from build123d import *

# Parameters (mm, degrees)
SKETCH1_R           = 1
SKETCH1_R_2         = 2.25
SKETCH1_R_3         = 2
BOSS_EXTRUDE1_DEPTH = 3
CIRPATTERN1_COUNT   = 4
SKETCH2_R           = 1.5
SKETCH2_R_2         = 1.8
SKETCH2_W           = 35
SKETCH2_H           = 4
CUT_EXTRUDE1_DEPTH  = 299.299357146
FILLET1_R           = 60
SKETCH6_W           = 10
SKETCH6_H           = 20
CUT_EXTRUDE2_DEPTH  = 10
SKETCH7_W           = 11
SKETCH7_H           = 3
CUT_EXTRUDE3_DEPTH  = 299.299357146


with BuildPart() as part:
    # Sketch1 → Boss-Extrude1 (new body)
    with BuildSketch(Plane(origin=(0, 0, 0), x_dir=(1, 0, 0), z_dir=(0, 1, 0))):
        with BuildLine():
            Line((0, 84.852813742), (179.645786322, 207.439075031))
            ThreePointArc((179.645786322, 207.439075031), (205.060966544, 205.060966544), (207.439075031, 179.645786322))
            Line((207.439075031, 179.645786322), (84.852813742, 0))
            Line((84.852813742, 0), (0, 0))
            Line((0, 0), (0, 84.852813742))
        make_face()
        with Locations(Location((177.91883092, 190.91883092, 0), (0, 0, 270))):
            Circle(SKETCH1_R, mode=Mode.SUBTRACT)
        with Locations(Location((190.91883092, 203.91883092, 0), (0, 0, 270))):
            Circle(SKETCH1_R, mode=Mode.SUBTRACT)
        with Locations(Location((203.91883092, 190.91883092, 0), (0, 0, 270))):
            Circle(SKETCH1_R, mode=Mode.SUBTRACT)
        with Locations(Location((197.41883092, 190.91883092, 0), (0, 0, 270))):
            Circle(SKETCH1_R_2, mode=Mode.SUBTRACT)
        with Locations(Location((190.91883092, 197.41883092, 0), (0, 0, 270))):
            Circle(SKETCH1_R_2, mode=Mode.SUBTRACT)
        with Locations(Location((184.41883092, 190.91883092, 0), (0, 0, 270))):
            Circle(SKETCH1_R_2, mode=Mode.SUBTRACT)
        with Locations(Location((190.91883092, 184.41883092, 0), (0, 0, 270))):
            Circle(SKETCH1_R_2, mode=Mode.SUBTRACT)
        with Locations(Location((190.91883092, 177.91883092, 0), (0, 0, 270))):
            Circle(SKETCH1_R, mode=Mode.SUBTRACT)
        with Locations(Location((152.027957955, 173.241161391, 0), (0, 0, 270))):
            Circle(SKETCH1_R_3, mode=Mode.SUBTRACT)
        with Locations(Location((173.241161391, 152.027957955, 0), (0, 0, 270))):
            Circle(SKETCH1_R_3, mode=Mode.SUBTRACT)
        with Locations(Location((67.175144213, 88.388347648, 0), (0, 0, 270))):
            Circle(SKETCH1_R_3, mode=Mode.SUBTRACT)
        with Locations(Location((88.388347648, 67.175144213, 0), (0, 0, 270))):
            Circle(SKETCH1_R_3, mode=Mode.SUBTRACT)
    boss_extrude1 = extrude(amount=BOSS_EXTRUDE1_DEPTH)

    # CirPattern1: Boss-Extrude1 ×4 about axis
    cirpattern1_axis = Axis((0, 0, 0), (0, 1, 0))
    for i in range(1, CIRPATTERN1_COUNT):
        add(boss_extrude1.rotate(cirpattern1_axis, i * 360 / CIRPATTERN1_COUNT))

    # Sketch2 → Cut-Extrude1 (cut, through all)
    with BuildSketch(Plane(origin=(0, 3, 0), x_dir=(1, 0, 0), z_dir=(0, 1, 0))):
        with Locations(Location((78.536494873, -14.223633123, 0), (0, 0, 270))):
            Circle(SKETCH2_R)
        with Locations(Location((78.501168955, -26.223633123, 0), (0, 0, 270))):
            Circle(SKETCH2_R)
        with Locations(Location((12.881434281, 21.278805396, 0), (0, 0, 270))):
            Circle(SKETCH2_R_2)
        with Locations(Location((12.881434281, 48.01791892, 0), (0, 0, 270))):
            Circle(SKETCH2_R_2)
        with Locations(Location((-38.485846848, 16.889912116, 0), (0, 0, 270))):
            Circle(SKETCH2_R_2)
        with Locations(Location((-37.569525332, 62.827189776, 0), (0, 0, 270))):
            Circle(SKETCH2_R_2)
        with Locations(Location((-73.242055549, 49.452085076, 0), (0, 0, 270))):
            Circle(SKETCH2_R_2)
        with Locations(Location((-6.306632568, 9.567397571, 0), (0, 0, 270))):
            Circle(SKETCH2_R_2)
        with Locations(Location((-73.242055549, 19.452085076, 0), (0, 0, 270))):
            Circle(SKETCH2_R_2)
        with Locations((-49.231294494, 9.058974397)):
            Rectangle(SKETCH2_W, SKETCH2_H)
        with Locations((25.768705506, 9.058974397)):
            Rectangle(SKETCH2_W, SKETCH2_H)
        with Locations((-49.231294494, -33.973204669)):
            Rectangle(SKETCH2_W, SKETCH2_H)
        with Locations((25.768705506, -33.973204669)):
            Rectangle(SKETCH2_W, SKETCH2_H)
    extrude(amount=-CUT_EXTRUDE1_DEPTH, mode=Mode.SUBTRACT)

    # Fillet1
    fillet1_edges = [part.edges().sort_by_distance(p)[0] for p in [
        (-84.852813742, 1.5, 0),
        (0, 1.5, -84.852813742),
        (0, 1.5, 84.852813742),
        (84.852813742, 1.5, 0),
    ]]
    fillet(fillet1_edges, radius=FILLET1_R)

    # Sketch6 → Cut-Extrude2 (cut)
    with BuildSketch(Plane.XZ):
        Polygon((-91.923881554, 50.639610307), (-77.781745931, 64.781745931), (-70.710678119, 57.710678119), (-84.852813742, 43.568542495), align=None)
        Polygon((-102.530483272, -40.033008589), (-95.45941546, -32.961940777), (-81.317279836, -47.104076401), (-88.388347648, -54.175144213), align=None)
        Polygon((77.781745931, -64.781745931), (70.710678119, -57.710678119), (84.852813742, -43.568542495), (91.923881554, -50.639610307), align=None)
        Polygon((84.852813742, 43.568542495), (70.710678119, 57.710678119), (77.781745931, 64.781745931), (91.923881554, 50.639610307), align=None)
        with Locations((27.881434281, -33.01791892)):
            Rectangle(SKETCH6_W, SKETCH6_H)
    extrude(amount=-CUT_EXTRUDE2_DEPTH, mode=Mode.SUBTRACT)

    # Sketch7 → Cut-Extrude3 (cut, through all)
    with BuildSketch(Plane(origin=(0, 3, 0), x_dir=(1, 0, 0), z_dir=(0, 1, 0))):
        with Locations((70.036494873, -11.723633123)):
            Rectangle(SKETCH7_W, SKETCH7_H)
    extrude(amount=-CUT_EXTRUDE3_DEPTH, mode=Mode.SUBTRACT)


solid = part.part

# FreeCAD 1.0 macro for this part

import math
import FreeCAD as App
import Part
import Sketcher
from FreeCAD import Vector


def edges_at(feature, points):
    """Names of the edges that pass closest to the given points."""
    edges = feature.Shape.Edges
    near = lambda p: min(range(len(edges)), key=lambda i: edges[i].distToShape(Part.Vertex(*p))[0])
    return sorted({f"Edge{near(p) + 1}" for p in points})

doc = App.newDocument("Part")
body = doc.addObject("PartDesign::Body", "Body")

# Sketch on XZ plane
sketch1 = doc.addObject("Sketcher::SketchObject", "Sketch")
body.addObject(sketch1)
sketch1.AttachmentSupport = (doc.XZ_Plane, [""])
sketch1.MapMode = "FlatFace"
sketch1.addGeometry(Part.LineSegment(Vector(179.6, -207.4, 0), Vector(0, -84.9, 0)), False)
sketch1.addGeometry(Part.LineSegment(Vector(0, -84.9, 0), Vector(0, 0, 0)), False)
sketch1.addGeometry(Part.LineSegment(Vector(0, 0, 0), Vector(84.9, 0, 0)), False)
sketch1.addGeometry(Part.LineSegment(Vector(84.9, 0, 0), Vector(207.4, -179.6, 0)), False)
sketch1.addGeometry(Part.ArcOfCircle(Part.Circle(Vector(190.9, -190.9, 0), Vector(0, 0, 1), 20), math.radians(-124), math.radians(34)), False)
sketch1.addGeometry(Part.Circle(Vector(88.4, -67.2, 0), Vector(0, 0, 1), 2), False)
sketch1.addGeometry(Part.Circle(Vector(67.2, -88.4, 0), Vector(0, 0, 1), 2), False)
sketch1.addGeometry(Part.Circle(Vector(173.2, -152, 0), Vector(0, 0, 1), 2), False)
sketch1.addGeometry(Part.Circle(Vector(190.9, -177.9, 0), Vector(0, 0, 1), 1), False)
sketch1.addGeometry(Part.Circle(Vector(190.9, -184.4, 0), Vector(0, 0, 1), 2.2), False)
sketch1.addGeometry(Part.Circle(Vector(203.9, -190.9, 0), Vector(0, 0, 1), 1), False)
sketch1.addGeometry(Part.Circle(Vector(197.4, -190.9, 0), Vector(0, 0, 1), 2.2), False)
sketch1.addGeometry(Part.Circle(Vector(190.9, -197.4, 0), Vector(0, 0, 1), 2.2), False)
sketch1.addGeometry(Part.Circle(Vector(190.9, -203.9, 0), Vector(0, 0, 1), 1), False)
sketch1.addGeometry(Part.Circle(Vector(184.4, -190.9, 0), Vector(0, 0, 1), 2.2), False)
sketch1.addGeometry(Part.Circle(Vector(177.9, -190.9, 0), Vector(0, 0, 1), 1), False)
sketch1.addGeometry(Part.Circle(Vector(152, -173.2, 0), Vector(0, 0, 1), 2), False)
sketch1.addConstraint(Sketcher.Constraint("Coincident", 0, 2, 1, 1))
sketch1.addConstraint(Sketcher.Constraint("Coincident", 1, 2, 2, 1))
sketch1.addConstraint(Sketcher.Constraint("Coincident", 2, 2, 3, 1))
sketch1.addConstraint(Sketcher.Constraint("Tangent", 3, 2, 4, 2))
sketch1.addConstraint(Sketcher.Constraint("Tangent", 4, 1, 0, 1))
sketch1.addConstraint(Sketcher.Constraint("Vertical", 1))
sketch1.addConstraint(Sketcher.Constraint("Horizontal", 2))
sketch1.addConstraint(Sketcher.Constraint("Coincident", 1, 2, -1, 1))
sketch1.addConstraint(Sketcher.Constraint("Equal", 5, 6))
sketch1.addConstraint(Sketcher.Constraint("Equal", 6, 7))
sketch1.addConstraint(Sketcher.Constraint("Equal", 8, 10))
sketch1.addConstraint(Sketcher.Constraint("Equal", 9, 11))
sketch1.addConstraint(Sketcher.Constraint("Equal", 11, 12))
sketch1.addConstraint(Sketcher.Constraint("Equal", 10, 13))
sketch1.addConstraint(Sketcher.Constraint("Equal", 12, 14))
sketch1.addConstraint(Sketcher.Constraint("Equal", 13, 15))
sketch1.addConstraint(Sketcher.Constraint("Equal", 7, 16))
sketch1.addConstraint(Sketcher.Constraint("Horizontal", 4, 3, 10, 3))
sketch1.addConstraint(Sketcher.Constraint("Horizontal", 10, 3, 11, 3))
sketch1.addConstraint(Sketcher.Constraint("Horizontal", 11, 3, 14, 3))
sketch1.addConstraint(Sketcher.Constraint("Horizontal", 14, 3, 15, 3))
sketch1.addConstraint(Sketcher.Constraint("Vertical", 4, 3, 8, 3))
sketch1.addConstraint(Sketcher.Constraint("Vertical", 8, 3, 9, 3))
sketch1.addConstraint(Sketcher.Constraint("Vertical", 9, 3, 12, 3))
sketch1.addConstraint(Sketcher.Constraint("Vertical", 12, 3, 13, 3))
sketch1.addConstraint(Sketcher.Constraint("Equal", 2, 1))
sketch1.addConstraint(Sketcher.Constraint("Equal", 0, 3))
sketch1.addConstraint(Sketcher.Constraint("Diameter", 5, 4.0))
sketch1.addConstraint(Sketcher.Constraint("Diameter", 8, 2.0))
sketch1.addConstraint(Sketcher.Constraint("Radius", 4, 20.0))
sketch1.addConstraint(Sketcher.Constraint("Diameter", 9, 4.5))
sketch1.addConstraint(Sketcher.Constraint("DistanceY", 4, 3, 8, 3, 13.0))
sketch1.addConstraint(Sketcher.Constraint("DistanceX", 4, 3, 10, 3, 13.0))
sketch1.addConstraint(Sketcher.Constraint("DistanceY", 12, 3, 9, 3, 13.0))
sketch1.addConstraint(Sketcher.Constraint("DistanceY", 13, 3, 4, 3, 13.0))
sketch1.addConstraint(Sketcher.Constraint("DistanceX", 14, 3, 11, 3, 13.0))
sketch1.addConstraint(Sketcher.Constraint("DistanceX", 15, 3, 4, 3, 13.0))
sketch1.addConstraint(Sketcher.Constraint("DistanceY", 4, 3, 9, 3, 6.5))
sketch1.addConstraint(Sketcher.Constraint("DistanceX", 4, 3, 11, 3, 6.5))
sketch1.addConstraint(Sketcher.Constraint("Distance", 0, 217.485632))
sketch1.addConstraint(Sketcher.Constraint("DistanceX", 2, 1, 2, 2, 84.852814))
sketch1.addConstraint(Sketcher.Constraint("DistanceX", -1, 1, 7, 3, 173.241161))
sketch1.addConstraint(Sketcher.Constraint("DistanceY", 16, 3, -1, 1, 173.241161))
sketch1.addConstraint(Sketcher.Constraint("DistanceY", 7, 3, 6, 3, 63.63961))
sketch1.addConstraint(Sketcher.Constraint("DistanceY", 0, 2, 5, 3, 17.67767))
sketch1.addConstraint(Sketcher.Constraint("DistanceX", 6, 3, 2, 2, 17.67767))
sketch1.addConstraint(Sketcher.Constraint("DistanceX", -1, 1, 5, 3, 88.388348))
sketch1.addConstraint(Sketcher.Constraint("DistanceY", 6, 3, -1, 1, 88.388348))
sketch1.addConstraint(Sketcher.Constraint("DistanceX", -1, 1, 16, 3, 152.027958))
pad1 = doc.addObject("PartDesign::Pad", "Pad")
body.addObject(pad1)
pad1.Profile = sketch1
pad1.Length = 3
pad1.Reversed = True
doc.recompute()

polarpattern = doc.addObject("PartDesign::PolarPattern", "PolarPattern")
body.addObject(polarpattern)
polarpattern.Originals = [pad1]
polarpattern.Axis = (doc.Y_Axis, [""])
polarpattern.Angle = 360
polarpattern.Occurrences = 4
body.Tip = polarpattern

# Sketch on XZ plane
sketch2 = doc.addObject("Sketcher::SketchObject", "Sketch001")
body.addObject(sketch2)
sketch2.AttachmentSupport = (doc.XZ_Plane, [""])
sketch2.MapMode = "FlatFace"
sketch2.AttachmentOffset = App.Placement(Vector(0, 0, -3), App.Rotation())
sketch2.addGeometry(Part.Circle(Vector(78.5, 14.2, 0), Vector(0, 0, 1), 1.5), False)
sketch2.addGeometry(Part.Circle(Vector(78.5, 26.2, 0), Vector(0, 0, 1), 1.5), False)
sketch2.addGeometry(Part.Circle(Vector(12.9, -21.3, 0), Vector(0, 0, 1), 1.8), False)
sketch2.addGeometry(Part.Circle(Vector(12.9, -48, 0), Vector(0, 0, 1), 1.8), False)
sketch2.addGeometry(Part.Circle(Vector(-38.5, -16.9, 0), Vector(0, 0, 1), 1.8), False)
sketch2.addGeometry(Part.Circle(Vector(-37.6, -62.8, 0), Vector(0, 0, 1), 1.8), False)
sketch2.addGeometry(Part.Circle(Vector(-73.2, -49.5, 0), Vector(0, 0, 1), 1.8), False)
sketch2.addGeometry(Part.Circle(Vector(-6.3, -9.6, 0), Vector(0, 0, 1), 1.8), False)
sketch2.addGeometry(Part.Circle(Vector(-73.2, -19.5, 0), Vector(0, 0, 1), 1.8), False)
sketch2.addGeometry(Part.LineSegment(Vector(-66.7, -11.1, 0), Vector(-66.7, -7.1, 0)), False)
sketch2.addGeometry(Part.LineSegment(Vector(-66.7, -7.1, 0), Vector(-31.7, -7.1, 0)), False)
sketch2.addGeometry(Part.LineSegment(Vector(-31.7, -7.1, 0), Vector(-31.7, -11.1, 0)), False)
sketch2.addGeometry(Part.LineSegment(Vector(-31.7, -11.1, 0), Vector(-66.7, -11.1, 0)), False)
sketch2.addGeometry(Part.LineSegment(Vector(8.3, -11.1, 0), Vector(8.3, -7.1, 0)), False)
sketch2.addGeometry(Part.LineSegment(Vector(8.3, -7.1, 0), Vector(43.3, -7.1, 0)), False)
sketch2.addGeometry(Part.LineSegment(Vector(43.3, -7.1, 0), Vector(43.3, -11.1, 0)), False)
sketch2.addGeometry(Part.LineSegment(Vector(43.3, -11.1, 0), Vector(8.3, -11.1, 0)), False)
sketch2.addGeometry(Part.LineSegment(Vector(-66.7, 32, 0), Vector(-66.7, 36, 0)), False)
sketch2.addGeometry(Part.LineSegment(Vector(-66.7, 36, 0), Vector(-31.7, 36, 0)), False)
sketch2.addGeometry(Part.LineSegment(Vector(-31.7, 36, 0), Vector(-31.7, 32, 0)), False)
sketch2.addGeometry(Part.LineSegment(Vector(-31.7, 32, 0), Vector(-66.7, 32, 0)), False)
sketch2.addGeometry(Part.LineSegment(Vector(8.3, 32, 0), Vector(8.3, 36, 0)), False)
sketch2.addGeometry(Part.LineSegment(Vector(8.3, 36, 0), Vector(43.3, 36, 0)), False)
sketch2.addGeometry(Part.LineSegment(Vector(43.3, 36, 0), Vector(43.3, 32, 0)), False)
sketch2.addGeometry(Part.LineSegment(Vector(43.3, 32, 0), Vector(8.3, 32, 0)), False)
sketch2.addConstraint(Sketcher.Constraint("Coincident", 9, 2, 10, 1))
sketch2.addConstraint(Sketcher.Constraint("Coincident", 10, 2, 11, 1))
sketch2.addConstraint(Sketcher.Constraint("Coincident", 11, 2, 12, 1))
sketch2.addConstraint(Sketcher.Constraint("Coincident", 12, 2, 9, 1))
sketch2.addConstraint(Sketcher.Constraint("Coincident", 13, 2, 14, 1))
sketch2.addConstraint(Sketcher.Constraint("Coincident", 14, 2, 15, 1))
sketch2.addConstraint(Sketcher.Constraint("Coincident", 15, 2, 16, 1))
sketch2.addConstraint(Sketcher.Constraint("Coincident", 16, 2, 13, 1))
sketch2.addConstraint(Sketcher.Constraint("Coincident", 17, 2, 18, 1))
sketch2.addConstraint(Sketcher.Constraint("Coincident", 18, 2, 19, 1))
sketch2.addConstraint(Sketcher.Constraint("Coincident", 19, 2, 20, 1))
sketch2.addConstraint(Sketcher.Constraint("Coincident", 20, 2, 17, 1))
sketch2.addConstraint(Sketcher.Constraint("Coincident", 21, 2, 22, 1))
sketch2.addConstraint(Sketcher.Constraint("Coincident", 22, 2, 23, 1))
sketch2.addConstraint(Sketcher.Constraint("Coincident", 23, 2, 24, 1))
sketch2.addConstraint(Sketcher.Constraint("Coincident", 24, 2, 21, 1))
sketch2.addConstraint(Sketcher.Constraint("Vertical", 9))
sketch2.addConstraint(Sketcher.Constraint("Horizontal", 10))
sketch2.addConstraint(Sketcher.Constraint("Vertical", 11))
sketch2.addConstraint(Sketcher.Constraint("Horizontal", 12))
sketch2.addConstraint(Sketcher.Constraint("Vertical", 13))
sketch2.addConstraint(Sketcher.Constraint("Horizontal", 14))
sketch2.addConstraint(Sketcher.Constraint("Vertical", 15))
sketch2.addConstraint(Sketcher.Constraint("Horizontal", 16))
sketch2.addConstraint(Sketcher.Constraint("Vertical", 17))
sketch2.addConstraint(Sketcher.Constraint("Horizontal", 18))
sketch2.addConstraint(Sketcher.Constraint("Vertical", 19))
sketch2.addConstraint(Sketcher.Constraint("Horizontal", 20))
sketch2.addConstraint(Sketcher.Constraint("Vertical", 21))
sketch2.addConstraint(Sketcher.Constraint("Horizontal", 22))
sketch2.addConstraint(Sketcher.Constraint("Vertical", 23))
sketch2.addConstraint(Sketcher.Constraint("Horizontal", 24))
sketch2.addConstraint(Sketcher.Constraint("Equal", 0, 1))
sketch2.addConstraint(Sketcher.Constraint("Equal", 2, 3))
sketch2.addConstraint(Sketcher.Constraint("Equal", 3, 4))
sketch2.addConstraint(Sketcher.Constraint("Equal", 4, 5))
sketch2.addConstraint(Sketcher.Constraint("Equal", 5, 6))
sketch2.addConstraint(Sketcher.Constraint("Equal", 6, 7))
sketch2.addConstraint(Sketcher.Constraint("Equal", 7, 8))
sketch2.addConstraint(Sketcher.Constraint("Horizontal", 10, 2, 13, 2))
sketch2.addConstraint(Sketcher.Constraint("Horizontal", 12, 2, 15, 2))
sketch2.addConstraint(Sketcher.Constraint("Horizontal", 18, 2, 21, 2))
sketch2.addConstraint(Sketcher.Constraint("Horizontal", 20, 2, 23, 2))
sketch2.addConstraint(Sketcher.Constraint("Vertical", 2, 3, 3, 3))
sketch2.addConstraint(Sketcher.Constraint("Vertical", 6, 3, 8, 3))
sketch2.addConstraint(Sketcher.Constraint("Vertical", 12, 2, 17, 2))
sketch2.addConstraint(Sketcher.Constraint("Vertical", 11, 2, 18, 2))
sketch2.addConstraint(Sketcher.Constraint("Vertical", 16, 2, 21, 2))
sketch2.addConstraint(Sketcher.Constraint("Vertical", 15, 2, 22, 2))
sketch2.addConstraint(Sketcher.Constraint("Equal", 12, 14))
sketch2.addConstraint(Sketcher.Constraint("Equal", 15, 17))
sketch2.addConstraint(Sketcher.Constraint("Diameter", 0, 3.0))
sketch2.addConstraint(Sketcher.Constraint("Diameter", 2, 3.6))
sketch2.addConstraint(Sketcher.Constraint("DistanceX", 10, 1, 10, 2, 35.0))
sketch2.addConstraint(Sketcher.Constraint("DistanceY", 9, 1, 9, 2, 4.0))
sketch2.addConstraint(Sketcher.Constraint("DistanceY", 0, 3, 1, 3, 12.0))
sketch2.addConstraint(Sketcher.Constraint("DistanceY", 6, 3, 8, 3, 30.0))
sketch2.addConstraint(Sketcher.Constraint("DistanceX", 10, 2, 13, 2, 40.0))
sketch2.addConstraint(Sketcher.Constraint("DistanceX", -1, 1, 1, 3, 78.501169))
sketch2.addConstraint(Sketcher.Constraint("DistanceY", 3, 3, -1, 1, 48.017919))
sketch2.addConstraint(Sketcher.Constraint("DistanceY", 5, 3, -1, 1, 62.82719))
sketch2.addConstraint(Sketcher.Constraint("DistanceX", 2, 3, 0, 3, 65.655061))
sketch2.addConstraint(Sketcher.Constraint("DistanceY", 2, 3, 0, 3, 35.502439))
sketch2.addConstraint(Sketcher.Constraint("DistanceX", 4, 3, 2, 3, 51.367281))
sketch2.addConstraint(Sketcher.Constraint("DistanceX", 4, 3, 5, 3, 0.916322))
sketch2.addConstraint(Sketcher.Constraint("DistanceX", 6, 3, 5, 3, 35.67253))
sketch2.addConstraint(Sketcher.Constraint("DistanceY", 6, 3, 2, 3, 28.17328))
sketch2.addConstraint(Sketcher.Constraint("DistanceY", 3, 3, 7, 3, 38.450521))
sketch2.addConstraint(Sketcher.Constraint("DistanceX", 8, 3, 9, 2, 6.510761))
sketch2.addConstraint(Sketcher.Constraint("DistanceY", 8, 3, 9, 2, 12.393111))
sketch2.addConstraint(Sketcher.Constraint("DistanceX", 9, 2, 7, 3, 60.424662))
sketch2.addConstraint(Sketcher.Constraint("DistanceY", 9, 2, 17, 2, 43.032179))
sketch2.addConstraint(Sketcher.Constraint("DistanceX", -1, 1, 0, 3, 78.536495))
sketch2.addConstraint(Sketcher.Constraint("DistanceY", -1, 1, 0, 3, 14.223633))
sketch2.addConstraint(Sketcher.Constraint("DistanceY", 4, 3, -1, 1, 16.889912))
pocket1 = doc.addObject("PartDesign::Pocket", "Pocket")
body.addObject(pocket1)
pocket1.Profile = sketch2
pocket1.Type = "ThroughAll"
pocket1.Reversed = True
doc.recompute()

fillet = doc.addObject("PartDesign::Fillet", "Fillet")
body.addObject(fillet)
fillet.Base = (pocket1, edges_at(pocket1, [
    (-84.853, 1.5, 0),
    (0, 1.5, -84.853),
    (0, 1.5, 84.853),
    (84.853, 1.5, 0),
]))
fillet.Radius = 60

# Sketch on XZ plane
sketch3 = doc.addObject("Sketcher::SketchObject", "Sketch002")
body.addObject(sketch3)
sketch3.AttachmentSupport = (doc.XZ_Plane, [""])
sketch3.MapMode = "FlatFace"
sketch3.addGeometry(Part.LineSegment(Vector(-78, 65, 0), Vector(-92, 51, 0)), False)
sketch3.addGeometry(Part.LineSegment(Vector(-92, 51, 0), Vector(-85, 44, 0)), False)
sketch3.addGeometry(Part.LineSegment(Vector(-85, 44, 0), Vector(-71, 58, 0)), False)
sketch3.addGeometry(Part.LineSegment(Vector(-71, 58, 0), Vector(-78, 65, 0)), False)
sketch3.addGeometry(Part.LineSegment(Vector(-95, -33, 0), Vector(-103, -40, 0)), False)
sketch3.addGeometry(Part.LineSegment(Vector(-103, -40, 0), Vector(-88, -54, 0)), False)
sketch3.addGeometry(Part.LineSegment(Vector(-88, -54, 0), Vector(-81, -47, 0)), False)
sketch3.addGeometry(Part.LineSegment(Vector(-81, -47, 0), Vector(-95, -33, 0)), False)
sketch3.addGeometry(Part.LineSegment(Vector(71, -58, 0), Vector(78, -65, 0)), False)
sketch3.addGeometry(Part.LineSegment(Vector(78, -65, 0), Vector(92, -51, 0)), False)
sketch3.addGeometry(Part.LineSegment(Vector(92, -51, 0), Vector(85, -44, 0)), False)
sketch3.addGeometry(Part.LineSegment(Vector(85, -44, 0), Vector(71, -58, 0)), False)
sketch3.addGeometry(Part.LineSegment(Vector(71, 58, 0), Vector(85, 44, 0)), False)
sketch3.addGeometry(Part.LineSegment(Vector(85, 44, 0), Vector(92, 51, 0)), False)
sketch3.addGeometry(Part.LineSegment(Vector(92, 51, 0), Vector(78, 65, 0)), False)
sketch3.addGeometry(Part.LineSegment(Vector(78, 65, 0), Vector(71, 58, 0)), False)
sketch3.addGeometry(Part.LineSegment(Vector(23, -23, 0), Vector(23, -43, 0)), False)
sketch3.addGeometry(Part.LineSegment(Vector(23, -43, 0), Vector(33, -43, 0)), False)
sketch3.addGeometry(Part.LineSegment(Vector(33, -43, 0), Vector(33, -23, 0)), False)
sketch3.addGeometry(Part.LineSegment(Vector(33, -23, 0), Vector(23, -23, 0)), False)
sketch3.addConstraint(Sketcher.Constraint("Coincident", 0, 2, 1, 1))
sketch3.addConstraint(Sketcher.Constraint("Coincident", 1, 2, 2, 1))
sketch3.addConstraint(Sketcher.Constraint("Coincident", 2, 2, 3, 1))
sketch3.addConstraint(Sketcher.Constraint("Coincident", 3, 2, 0, 1))
sketch3.addConstraint(Sketcher.Constraint("Coincident", 4, 2, 5, 1))
sketch3.addConstraint(Sketcher.Constraint("Coincident", 5, 2, 6, 1))
sketch3.addConstraint(Sketcher.Constraint("Coincident", 6, 2, 7, 1))
sketch3.addConstraint(Sketcher.Constraint("Coincident", 7, 2, 4, 1))
sketch3.addConstraint(Sketcher.Constraint("Coincident", 8, 2, 9, 1))
sketch3.addConstraint(Sketcher.Constraint("Coincident", 9, 2, 10, 1))
sketch3.addConstraint(Sketcher.Constraint("Coincident", 10, 2, 11, 1))
sketch3.addConstraint(Sketcher.Constraint("Coincident", 11, 2, 8, 1))
sketch3.addConstraint(Sketcher.Constraint("Coincident", 12, 2, 13, 1))
sketch3.addConstraint(Sketcher.Constraint("Coincident", 13, 2, 14, 1))
sketch3.addConstraint(Sketcher.Constraint("Coincident", 14, 2, 15, 1))
sketch3.addConstraint(Sketcher.Constraint("Coincident", 15, 2, 12, 1))
sketch3.addConstraint(Sketcher.Constraint("Coincident", 16, 2, 17, 1))
sketch3.addConstraint(Sketcher.Constraint("Coincident", 17, 2, 18, 1))
sketch3.addConstraint(Sketcher.Constraint("Coincident", 18, 2, 19, 1))
sketch3.addConstraint(Sketcher.Constraint("Coincident", 19, 2, 16, 1))
sketch3.addConstraint(Sketcher.Constraint("Vertical", 16))
sketch3.addConstraint(Sketcher.Constraint("Horizontal", 17))
sketch3.addConstraint(Sketcher.Constraint("Vertical", 18))
sketch3.addConstraint(Sketcher.Constraint("Horizontal", 19))
sketch3.addConstraint(Sketcher.Constraint("Symmetric", 3, 2, 8, 2, -1, 1))
sketch3.addConstraint(Sketcher.Constraint("Symmetric", 0, 2, 9, 2, -1, 1))
sketch3.addConstraint(Sketcher.Constraint("Symmetric", 1, 2, 10, 2, -1, 1))
sketch3.addConstraint(Sketcher.Constraint("Symmetric", 2, 2, 11, 2, -1, 1))
sketch3.addConstraint(Sketcher.Constraint("Symmetric", 1, 2, 12, 2, -2))
sketch3.addConstraint(Sketcher.Constraint("Symmetric", 0, 2, 13, 2, -2))
sketch3.addConstraint(Sketcher.Constraint("Symmetric", 3, 2, 14, 2, -2))
sketch3.addConstraint(Sketcher.Constraint("Symmetric", 2, 2, 15, 2, -2))
sketch3.addConstraint(Sketcher.Constraint("Perpendicular", 0, 1))
sketch3.addConstraint(Sketcher.Constraint("Perpendicular", 1, 2))
sketch3.addConstraint(Sketcher.Constraint("Perpendicular", 2, 3))
sketch3.addConstraint(Sketcher.Constraint("Perpendicular", 3, 4))
sketch3.addConstraint(Sketcher.Constraint("Perpendicular", 4, 5))
sketch3.addConstraint(Sketcher.Constraint("Perpendicular", 5, 6))
sketch3.addConstraint(Sketcher.Constraint("Perpendicular", 6, 7))
sketch3.addConstraint(Sketcher.Constraint("Perpendicular", 11, 12))
sketch3.addConstraint(Sketcher.Constraint("Equal", 3, 4))
sketch3.addConstraint(Sketcher.Constraint("Equal", 2, 5))
sketch3.addConstraint(Sketcher.Constraint("DistanceX", 17, 1, 17, 2, 10.0))
sketch3.addConstraint(Sketcher.Constraint("DistanceY", 16, 2, 16, 1, 20.0))
sketch3.addConstraint(Sketcher.Constraint("Distance", 0, 20.0))
sketch3.addConstraint(Sketcher.Constraint("Distance", 1, 10.0))
sketch3.addConstraint(Sketcher.Constraint("DistanceX", 4, 2, 0, 2, 10.606602))
sketch3.addConstraint(Sketcher.Constraint("DistanceY", 8, 2, 5, 2, 10.606602))
sketch3.addConstraint(Sketcher.Constraint("DistanceX", 0, 2, -1, 1, 91.923882))
sketch3.addConstraint(Sketcher.Constraint("DistanceY", -1, 1, 0, 2, 50.63961))
sketch3.addConstraint(Sketcher.Constraint("DistanceY", 16, 2, -1, 1, 43.017919))
sketch3.addConstraint(Sketcher.Constraint("DistanceX", 16, 2, 8, 2, 54.900312))
pocket2 = doc.addObject("PartDesign::Pocket", "Pocket001")
body.addObject(pocket2)
pocket2.Profile = sketch3
pocket2.Length = 10

# Sketch on XZ plane
sketch4 = doc.addObject("Sketcher::SketchObject", "Sketch003")
body.addObject(sketch4)
sketch4.AttachmentSupport = (doc.XZ_Plane, [""])
sketch4.MapMode = "FlatFace"
sketch4.AttachmentOffset = App.Placement(Vector(0, 0, -3), App.Rotation())
sketch4.addGeometry(Part.LineSegment(Vector(64.5, 10.2, 0), Vector(64.5, 13.2, 0)), False)
sketch4.addGeometry(Part.LineSegment(Vector(64.5, 13.2, 0), Vector(75.5, 13.2, 0)), False)
sketch4.addGeometry(Part.LineSegment(Vector(75.5, 13.2, 0), Vector(75.5, 10.2, 0)), False)
sketch4.addGeometry(Part.LineSegment(Vector(75.5, 10.2, 0), Vector(64.5, 10.2, 0)), False)
sketch4.addConstraint(Sketcher.Constraint("Coincident", 0, 2, 1, 1))
sketch4.addConstraint(Sketcher.Constraint("Coincident", 1, 2, 2, 1))
sketch4.addConstraint(Sketcher.Constraint("Coincident", 2, 2, 3, 1))
sketch4.addConstraint(Sketcher.Constraint("Coincident", 3, 2, 0, 1))
sketch4.addConstraint(Sketcher.Constraint("Vertical", 0))
sketch4.addConstraint(Sketcher.Constraint("Horizontal", 1))
sketch4.addConstraint(Sketcher.Constraint("Vertical", 2))
sketch4.addConstraint(Sketcher.Constraint("Horizontal", 3))
sketch4.addConstraint(Sketcher.Constraint("DistanceX", 1, 1, 1, 2, 11.0))
sketch4.addConstraint(Sketcher.Constraint("DistanceY", 0, 1, 0, 2, 3.0))
sketch4.addConstraint(Sketcher.Constraint("DistanceX", -1, 1, 0, 2, 64.536495))
sketch4.addConstraint(Sketcher.Constraint("DistanceY", -1, 1, 0, 2, 13.223633))
pocket3 = doc.addObject("PartDesign::Pocket", "Pocket002")
body.addObject(pocket3)
pocket3.Profile = sketch4
pocket3.Type = "ThroughAll"
pocket3.Reversed = True

doc.recompute()
